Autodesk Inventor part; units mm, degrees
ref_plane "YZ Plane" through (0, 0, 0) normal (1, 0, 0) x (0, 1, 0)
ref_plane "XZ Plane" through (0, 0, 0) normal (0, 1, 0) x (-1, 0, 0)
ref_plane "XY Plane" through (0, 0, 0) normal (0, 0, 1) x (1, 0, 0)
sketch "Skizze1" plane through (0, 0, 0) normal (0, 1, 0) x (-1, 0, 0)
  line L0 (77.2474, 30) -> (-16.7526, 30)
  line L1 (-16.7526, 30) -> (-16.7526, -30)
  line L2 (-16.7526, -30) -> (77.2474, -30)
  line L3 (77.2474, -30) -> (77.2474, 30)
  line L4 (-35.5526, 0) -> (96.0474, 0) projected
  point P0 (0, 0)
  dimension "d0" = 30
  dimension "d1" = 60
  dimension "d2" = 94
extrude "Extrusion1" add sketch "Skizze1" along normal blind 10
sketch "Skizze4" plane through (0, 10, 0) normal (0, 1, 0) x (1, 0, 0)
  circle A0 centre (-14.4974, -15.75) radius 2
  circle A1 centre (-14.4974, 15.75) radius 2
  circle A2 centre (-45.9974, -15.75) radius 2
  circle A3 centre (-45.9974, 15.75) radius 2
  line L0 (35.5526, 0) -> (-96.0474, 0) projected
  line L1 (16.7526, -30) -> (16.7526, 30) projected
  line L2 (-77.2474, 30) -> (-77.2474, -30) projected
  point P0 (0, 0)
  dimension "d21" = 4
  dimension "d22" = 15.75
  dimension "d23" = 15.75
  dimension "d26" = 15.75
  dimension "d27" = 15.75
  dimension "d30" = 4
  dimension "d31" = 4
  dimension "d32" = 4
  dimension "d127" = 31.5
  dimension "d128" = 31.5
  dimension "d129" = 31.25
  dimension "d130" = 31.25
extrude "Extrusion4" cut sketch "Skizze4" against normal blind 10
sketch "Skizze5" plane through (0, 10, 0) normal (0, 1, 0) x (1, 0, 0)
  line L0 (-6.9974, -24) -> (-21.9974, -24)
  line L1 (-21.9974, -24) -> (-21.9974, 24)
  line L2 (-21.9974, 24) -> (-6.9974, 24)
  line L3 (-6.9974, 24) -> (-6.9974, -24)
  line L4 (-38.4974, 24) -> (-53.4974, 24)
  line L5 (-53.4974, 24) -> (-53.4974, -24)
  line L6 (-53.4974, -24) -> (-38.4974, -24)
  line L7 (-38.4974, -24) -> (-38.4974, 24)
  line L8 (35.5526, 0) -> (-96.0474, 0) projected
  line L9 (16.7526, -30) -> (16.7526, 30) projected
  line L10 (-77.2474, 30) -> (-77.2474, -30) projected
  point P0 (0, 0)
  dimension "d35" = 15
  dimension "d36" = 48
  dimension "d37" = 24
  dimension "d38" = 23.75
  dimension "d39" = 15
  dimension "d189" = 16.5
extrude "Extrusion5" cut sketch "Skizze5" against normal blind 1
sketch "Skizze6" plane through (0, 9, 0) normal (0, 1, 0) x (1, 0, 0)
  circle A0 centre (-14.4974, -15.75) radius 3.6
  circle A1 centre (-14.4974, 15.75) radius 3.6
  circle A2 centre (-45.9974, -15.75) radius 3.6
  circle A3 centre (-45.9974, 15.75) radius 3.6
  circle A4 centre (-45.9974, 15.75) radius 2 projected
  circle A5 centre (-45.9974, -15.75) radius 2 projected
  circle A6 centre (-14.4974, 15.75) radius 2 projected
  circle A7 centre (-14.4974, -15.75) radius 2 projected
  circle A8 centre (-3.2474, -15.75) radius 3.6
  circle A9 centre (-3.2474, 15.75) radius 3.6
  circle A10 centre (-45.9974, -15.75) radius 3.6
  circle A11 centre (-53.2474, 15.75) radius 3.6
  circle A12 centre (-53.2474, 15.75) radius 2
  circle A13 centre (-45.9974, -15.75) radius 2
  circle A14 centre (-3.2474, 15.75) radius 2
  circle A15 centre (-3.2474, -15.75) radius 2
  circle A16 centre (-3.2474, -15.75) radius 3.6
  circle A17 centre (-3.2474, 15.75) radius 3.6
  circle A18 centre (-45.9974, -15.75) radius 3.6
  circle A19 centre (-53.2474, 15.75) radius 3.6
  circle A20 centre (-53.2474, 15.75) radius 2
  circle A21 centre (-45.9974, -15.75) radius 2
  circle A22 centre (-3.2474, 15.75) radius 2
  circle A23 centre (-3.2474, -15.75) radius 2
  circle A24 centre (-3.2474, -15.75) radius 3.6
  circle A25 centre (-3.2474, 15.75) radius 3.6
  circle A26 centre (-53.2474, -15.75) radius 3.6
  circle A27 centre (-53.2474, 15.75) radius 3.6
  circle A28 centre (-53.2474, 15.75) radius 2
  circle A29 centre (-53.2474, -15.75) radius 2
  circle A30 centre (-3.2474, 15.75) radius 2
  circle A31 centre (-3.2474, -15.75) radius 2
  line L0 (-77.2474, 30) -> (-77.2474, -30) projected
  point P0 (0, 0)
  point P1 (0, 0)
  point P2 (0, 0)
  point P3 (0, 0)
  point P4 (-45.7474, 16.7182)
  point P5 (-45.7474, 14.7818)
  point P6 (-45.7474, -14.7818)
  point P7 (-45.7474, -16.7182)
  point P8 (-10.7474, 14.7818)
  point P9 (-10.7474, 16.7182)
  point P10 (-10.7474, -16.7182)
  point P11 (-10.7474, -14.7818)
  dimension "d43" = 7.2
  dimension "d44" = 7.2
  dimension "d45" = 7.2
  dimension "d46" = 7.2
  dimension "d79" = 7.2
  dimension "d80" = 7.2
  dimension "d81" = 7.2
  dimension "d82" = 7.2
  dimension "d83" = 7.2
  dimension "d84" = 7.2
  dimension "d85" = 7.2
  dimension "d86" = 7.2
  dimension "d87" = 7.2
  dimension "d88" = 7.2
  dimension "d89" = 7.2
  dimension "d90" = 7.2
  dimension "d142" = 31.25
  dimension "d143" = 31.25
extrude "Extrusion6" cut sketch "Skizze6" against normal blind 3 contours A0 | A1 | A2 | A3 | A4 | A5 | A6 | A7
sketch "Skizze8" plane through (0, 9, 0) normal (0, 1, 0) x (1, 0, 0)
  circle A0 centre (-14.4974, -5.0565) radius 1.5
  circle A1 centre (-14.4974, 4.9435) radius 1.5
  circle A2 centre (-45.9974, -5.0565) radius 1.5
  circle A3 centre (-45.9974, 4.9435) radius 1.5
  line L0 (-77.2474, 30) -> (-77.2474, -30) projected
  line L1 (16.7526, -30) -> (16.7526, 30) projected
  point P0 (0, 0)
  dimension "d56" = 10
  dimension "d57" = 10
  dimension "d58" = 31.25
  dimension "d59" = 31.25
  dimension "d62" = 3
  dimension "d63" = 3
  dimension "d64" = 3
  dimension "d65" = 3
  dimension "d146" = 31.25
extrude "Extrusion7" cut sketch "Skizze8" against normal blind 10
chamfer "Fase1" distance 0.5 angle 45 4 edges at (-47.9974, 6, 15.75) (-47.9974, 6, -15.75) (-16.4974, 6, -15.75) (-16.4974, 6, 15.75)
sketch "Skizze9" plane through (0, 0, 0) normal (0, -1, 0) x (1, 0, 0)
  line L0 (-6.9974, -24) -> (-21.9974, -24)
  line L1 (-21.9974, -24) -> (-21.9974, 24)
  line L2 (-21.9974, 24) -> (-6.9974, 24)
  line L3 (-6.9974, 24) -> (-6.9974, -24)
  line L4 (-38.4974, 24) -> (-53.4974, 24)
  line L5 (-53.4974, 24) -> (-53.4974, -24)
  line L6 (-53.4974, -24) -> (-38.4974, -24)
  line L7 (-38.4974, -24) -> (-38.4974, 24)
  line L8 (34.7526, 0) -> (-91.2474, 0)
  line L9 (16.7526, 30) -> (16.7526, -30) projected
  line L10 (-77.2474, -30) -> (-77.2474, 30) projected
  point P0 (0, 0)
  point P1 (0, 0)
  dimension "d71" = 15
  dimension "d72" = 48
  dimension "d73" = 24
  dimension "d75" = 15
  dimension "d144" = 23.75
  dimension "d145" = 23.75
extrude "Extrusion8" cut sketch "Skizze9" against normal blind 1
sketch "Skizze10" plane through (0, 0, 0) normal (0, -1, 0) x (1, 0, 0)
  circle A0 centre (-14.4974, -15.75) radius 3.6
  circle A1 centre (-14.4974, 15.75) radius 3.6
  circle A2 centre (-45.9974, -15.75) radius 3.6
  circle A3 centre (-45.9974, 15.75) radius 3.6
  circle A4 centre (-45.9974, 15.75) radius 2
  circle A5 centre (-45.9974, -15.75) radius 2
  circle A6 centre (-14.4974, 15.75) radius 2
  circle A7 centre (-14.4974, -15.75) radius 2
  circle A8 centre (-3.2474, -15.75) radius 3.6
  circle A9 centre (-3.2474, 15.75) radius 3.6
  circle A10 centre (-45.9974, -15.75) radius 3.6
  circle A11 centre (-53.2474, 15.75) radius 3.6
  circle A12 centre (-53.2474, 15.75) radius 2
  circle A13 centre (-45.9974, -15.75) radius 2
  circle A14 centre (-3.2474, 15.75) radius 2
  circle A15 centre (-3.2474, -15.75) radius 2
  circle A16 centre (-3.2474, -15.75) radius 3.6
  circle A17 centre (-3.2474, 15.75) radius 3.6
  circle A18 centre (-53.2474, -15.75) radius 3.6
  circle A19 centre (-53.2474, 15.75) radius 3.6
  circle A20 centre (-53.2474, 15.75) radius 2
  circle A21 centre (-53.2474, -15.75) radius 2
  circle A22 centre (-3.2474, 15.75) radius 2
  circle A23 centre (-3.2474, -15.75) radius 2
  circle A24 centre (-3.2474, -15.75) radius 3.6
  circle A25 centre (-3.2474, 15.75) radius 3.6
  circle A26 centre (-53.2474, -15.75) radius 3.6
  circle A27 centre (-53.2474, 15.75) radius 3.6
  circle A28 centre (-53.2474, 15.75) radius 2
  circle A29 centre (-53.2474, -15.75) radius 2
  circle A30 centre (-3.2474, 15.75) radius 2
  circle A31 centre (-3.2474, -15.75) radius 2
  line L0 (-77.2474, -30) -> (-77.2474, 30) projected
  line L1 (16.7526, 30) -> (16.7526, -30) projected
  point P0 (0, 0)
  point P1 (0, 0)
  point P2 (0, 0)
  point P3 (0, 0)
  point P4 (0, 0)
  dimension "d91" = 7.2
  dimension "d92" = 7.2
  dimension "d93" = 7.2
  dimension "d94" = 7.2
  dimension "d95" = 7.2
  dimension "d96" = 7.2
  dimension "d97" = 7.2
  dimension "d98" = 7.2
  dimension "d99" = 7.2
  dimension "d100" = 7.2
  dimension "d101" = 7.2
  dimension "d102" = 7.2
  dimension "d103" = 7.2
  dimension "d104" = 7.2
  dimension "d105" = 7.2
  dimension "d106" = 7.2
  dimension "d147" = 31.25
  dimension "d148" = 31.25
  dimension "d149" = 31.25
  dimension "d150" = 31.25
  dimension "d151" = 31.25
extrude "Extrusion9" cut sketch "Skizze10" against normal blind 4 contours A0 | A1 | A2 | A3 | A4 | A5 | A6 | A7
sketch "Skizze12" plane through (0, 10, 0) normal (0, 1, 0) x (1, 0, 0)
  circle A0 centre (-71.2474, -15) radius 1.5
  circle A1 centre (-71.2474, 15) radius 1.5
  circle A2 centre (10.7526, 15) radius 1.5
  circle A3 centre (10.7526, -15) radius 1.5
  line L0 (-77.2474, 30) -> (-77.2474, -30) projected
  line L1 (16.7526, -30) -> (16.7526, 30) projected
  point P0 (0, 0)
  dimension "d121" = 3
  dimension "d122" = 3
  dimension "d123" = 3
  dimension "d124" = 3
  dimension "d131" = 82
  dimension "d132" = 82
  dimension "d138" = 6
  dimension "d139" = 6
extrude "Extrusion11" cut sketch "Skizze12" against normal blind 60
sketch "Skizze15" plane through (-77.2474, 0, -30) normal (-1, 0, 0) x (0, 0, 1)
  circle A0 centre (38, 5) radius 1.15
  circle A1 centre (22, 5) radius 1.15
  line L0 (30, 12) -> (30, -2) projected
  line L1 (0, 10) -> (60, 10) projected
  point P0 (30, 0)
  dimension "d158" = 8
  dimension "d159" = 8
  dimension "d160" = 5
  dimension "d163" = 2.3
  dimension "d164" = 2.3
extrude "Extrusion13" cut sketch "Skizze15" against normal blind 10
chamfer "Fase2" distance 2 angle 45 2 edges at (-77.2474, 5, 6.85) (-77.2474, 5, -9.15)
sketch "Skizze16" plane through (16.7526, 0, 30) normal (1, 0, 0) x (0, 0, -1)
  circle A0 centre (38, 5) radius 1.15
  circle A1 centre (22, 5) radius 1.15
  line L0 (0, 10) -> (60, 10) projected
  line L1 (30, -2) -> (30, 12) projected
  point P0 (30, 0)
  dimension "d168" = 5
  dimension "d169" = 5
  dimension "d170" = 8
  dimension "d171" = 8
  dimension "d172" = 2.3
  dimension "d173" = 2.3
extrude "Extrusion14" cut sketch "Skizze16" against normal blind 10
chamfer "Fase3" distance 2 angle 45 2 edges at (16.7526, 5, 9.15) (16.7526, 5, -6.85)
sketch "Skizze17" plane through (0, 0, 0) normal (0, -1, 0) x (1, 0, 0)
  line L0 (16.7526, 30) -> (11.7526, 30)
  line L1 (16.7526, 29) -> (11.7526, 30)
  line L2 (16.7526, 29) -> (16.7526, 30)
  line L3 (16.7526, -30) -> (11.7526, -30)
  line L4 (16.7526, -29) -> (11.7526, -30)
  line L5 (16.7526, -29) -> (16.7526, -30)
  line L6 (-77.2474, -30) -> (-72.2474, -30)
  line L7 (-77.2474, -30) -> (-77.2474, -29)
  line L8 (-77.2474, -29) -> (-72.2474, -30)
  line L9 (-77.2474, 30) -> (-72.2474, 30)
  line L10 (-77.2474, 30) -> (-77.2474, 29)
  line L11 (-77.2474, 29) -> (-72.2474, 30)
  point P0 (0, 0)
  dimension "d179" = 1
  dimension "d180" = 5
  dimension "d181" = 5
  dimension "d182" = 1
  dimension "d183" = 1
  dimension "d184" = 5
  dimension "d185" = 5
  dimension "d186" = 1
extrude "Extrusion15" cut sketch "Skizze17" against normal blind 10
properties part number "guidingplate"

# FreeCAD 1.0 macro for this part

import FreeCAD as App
import Part
import Sketcher

V = App.Vector
Q = App.Units.Quantity


def edges_at(feature, points):
    """Names of the edges that pass closest to the given points."""
    edges = feature.Shape.Edges
    near = lambda p: min(range(len(edges)), key=lambda i: edges[i].distToShape(Part.Vertex(*p))[0])
    return sorted({f"Edge{near(p) + 1}" for p in points})


def add_polygon(sketch, points):
    """Adds a closed chain of lines whose ends are joined by coincident constraints."""
    first, n = sketch.GeometryCount, len(points)
    for a, b in zip(points, points[1:] + points[:1]):
        sketch.addGeometry(Part.LineSegment(App.Vector(*a, 0), App.Vector(*b, 0)), False)
    for i in range(n):
        sketch.addConstraint(Sketcher.Constraint("Coincident", first + i, 2, first + (i + 1) % n, 1))

doc = App.newDocument("Part")
body = doc.addObject("PartDesign::Body", "Body")

sketch1 = body.newObject("Sketcher::SketchObject", "Sketch")
sketch1.AttachmentSupport = (doc.getObject("XZ_Plane"), [""])
sketch1.MapMode = "FlatFace"
add_polygon(sketch1, [(-77, 30), (17, 30), (17, -30), (-77, -30)])
sketch1.addConstraint([
    Sketcher.Constraint("Horizontal", 0),
    Sketcher.Constraint("Vertical", 1),
    Sketcher.Constraint("Horizontal", 2),
    Sketcher.Constraint("Vertical", 3),
    Sketcher.Constraint("DistanceX", 0, 1, 0, 2, Q("94 mm")),
    Sketcher.Constraint("DistanceY", 1, 2, 1, 1, Q("60 mm")),
    Sketcher.Constraint("DistanceY", -1, 1, 0, 2, Q("30 mm")),
    Sketcher.Constraint("DistanceX", -1, 1, 0, 2, Q("16.7526 mm")),
])
pad1 = body.newObject("PartDesign::Pad", "Pad")
pad1.Profile = sketch1
pad1.Length = 10
pad1.Reversed = True

sketch2 = body.newObject("Sketcher::SketchObject", "Sketch001")
sketch2.AttachmentSupport = (doc.getObject("XZ_Plane"), [""])
sketch2.MapMode = "FlatFace"
sketch2.AttachmentOffset = App.Placement(V(0, 0, -10), App.Rotation())
sketch2.addGeometry([
    Part.Circle(V(-14.5, 15.8, 0), V(0, 0, 1), 2),
    Part.Circle(V(-14.5, -15.8, 0), V(0, 0, 1), 2),
    Part.Circle(V(-46, 15.8, 0), V(0, 0, 1), 2),
    Part.Circle(V(-46, -15.8, 0), V(0, 0, 1), 2),
], False)
sketch2.addConstraint([
    Sketcher.Constraint("Equal", 0, 1),
    Sketcher.Constraint("Equal", 1, 2),
    Sketcher.Constraint("Equal", 2, 3),
    Sketcher.Constraint("Symmetric", 0, 3, 1, 3, -1),
    Sketcher.Constraint("Symmetric", 2, 3, 3, 3, -1),
    Sketcher.Constraint("Horizontal", 0, 3, 2, 3),
    Sketcher.Constraint("Diameter", 0, Q("4 mm")),
    Sketcher.Constraint("DistanceY", 1, 3, 0, 3, Q("31.5 mm")),
    Sketcher.Constraint("DistanceX", 2, 3, 0, 3, Q("31.5 mm")),
    Sketcher.Constraint("DistanceX", 0, 3, -1, 1, Q("14.4974 mm")),
])
pocket1 = body.newObject("PartDesign::Pocket", "Pocket")
pocket1.Profile = sketch2
pocket1.Length = 10
pocket1.Reversed = True

sketch3 = body.newObject("Sketcher::SketchObject", "Sketch002")
sketch3.AttachmentSupport = (doc.getObject("XZ_Plane"), [""])
sketch3.MapMode = "FlatFace"
sketch3.AttachmentOffset = App.Placement(V(0, 0, -10), App.Rotation())
add_polygon(sketch3, [(-38, 24), (-38, -24), (-53, -24), (-53, 24)])
add_polygon(sketch3, [(-22, 24), (-7, 24), (-7, -24), (-22, -24)])
sketch3.addConstraint([
    Sketcher.Constraint("Vertical", 0),
    Sketcher.Constraint("Horizontal", 1),
    Sketcher.Constraint("Vertical", 2),
    Sketcher.Constraint("Horizontal", 3),
    Sketcher.Constraint("Horizontal", 4),
    Sketcher.Constraint("Vertical", 5),
    Sketcher.Constraint("Horizontal", 6),
    Sketcher.Constraint("Vertical", 7),
    Sketcher.Constraint("Horizontal", 3, 2, 4, 2),
    Sketcher.Constraint("Horizontal", 1, 2, 5, 2),
    Sketcher.Constraint("Equal", 3, 4),
    Sketcher.Constraint("DistanceX", 1, 2, 1, 1, Q("15 mm")),
    Sketcher.Constraint("DistanceY", 0, 2, 0, 1, Q("48 mm")),
    Sketcher.Constraint("DistanceY", 0, 2, -1, 1, Q("24 mm")),
    Sketcher.Constraint("DistanceX", 0, 2, 6, 2, Q("16.5 mm")),
    Sketcher.Constraint("DistanceX", 0, 2, -1, 1, Q("38.4974 mm")),
])
pocket2 = body.newObject("PartDesign::Pocket", "Pocket001")
pocket2.Profile = sketch3
pocket2.Length = 1
pocket2.Reversed = True

sketch4 = body.newObject("Sketcher::SketchObject", "Sketch003")
sketch4.AttachmentSupport = (doc.getObject("XZ_Plane"), [""])
sketch4.MapMode = "FlatFace"
sketch4.AttachmentOffset = App.Placement(V(0, 0, -9), App.Rotation())
sketch4.addGeometry([
    Part.Circle(V(-14.5, 15.8, 0), V(0, 0, 1), 3.6),
    Part.Circle(V(-14.5, -15.8, 0), V(0, 0, 1), 3.6),
    Part.Circle(V(-46, 15.8, 0), V(0, 0, 1), 3.6),
    Part.Circle(V(-46, -15.8, 0), V(0, 0, 1), 3.6),
], False)
sketch4.addConstraint([
    Sketcher.Constraint("Equal", 0, 1),
    Sketcher.Constraint("Equal", 1, 2),
    Sketcher.Constraint("Equal", 2, 3),
    Sketcher.Constraint("Symmetric", 0, 3, 1, 3, -1),
    Sketcher.Constraint("Symmetric", 2, 3, 3, 3, -1),
    Sketcher.Constraint("Horizontal", 0, 3, 2, 3),
    Sketcher.Constraint("Diameter", 0, Q("7.2 mm")),
    Sketcher.Constraint("DistanceY", 1, 3, 0, 3, Q("31.5 mm")),
    Sketcher.Constraint("DistanceX", 2, 3, 0, 3, Q("31.5 mm")),
    Sketcher.Constraint("DistanceX", 0, 3, -1, 1, Q("14.4974 mm")),
])
pocket3 = body.newObject("PartDesign::Pocket", "Pocket002")
pocket3.Profile = sketch4
pocket3.Length = 3
pocket3.Reversed = True

sketch5 = body.newObject("Sketcher::SketchObject", "Sketch004")
sketch5.AttachmentSupport = (doc.getObject("XZ_Plane"), [""])
sketch5.MapMode = "FlatFace"
sketch5.AttachmentOffset = App.Placement(V(0, 0, -9), App.Rotation())
sketch5.addGeometry([
    Part.Circle(V(-14.5, 5.1, 0), V(0, 0, 1), 1.5),
    Part.Circle(V(-14.5, -4.9, 0), V(0, 0, 1), 1.5),
    Part.Circle(V(-46, 5.1, 0), V(0, 0, 1), 1.5),
    Part.Circle(V(-46, -4.9, 0), V(0, 0, 1), 1.5),
], False)
sketch5.addConstraint([
    Sketcher.Constraint("Equal", 0, 1),
    Sketcher.Constraint("Equal", 1, 2),
    Sketcher.Constraint("Equal", 2, 3),
    Sketcher.Constraint("Horizontal", 0, 3, 2, 3),
    Sketcher.Constraint("Horizontal", 1, 3, 3, 3),
    Sketcher.Constraint("Vertical", 0, 3, 1, 3),
    Sketcher.Constraint("Vertical", 2, 3, 3, 3),
    Sketcher.Constraint("Diameter", 0, Q("3 mm")),
    Sketcher.Constraint("DistanceY", 1, 3, 0, 3, Q("10 mm")),
    Sketcher.Constraint("DistanceX", 2, 3, 0, 3, Q("31.5 mm")),
    Sketcher.Constraint("DistanceX", 0, 3, -1, 1, Q("14.4974 mm")),
    Sketcher.Constraint("DistanceY", -1, 1, 0, 3, Q("5.0565 mm")),
])
pocket4 = body.newObject("PartDesign::Pocket", "Pocket003")
pocket4.Profile = sketch5
pocket4.Length = 10
pocket4.Reversed = True
doc.recompute()

chamfer = body.newObject("PartDesign::Chamfer", "Chamfer")
chamfer.Base = (pocket4, edges_at(pocket4, [
    (-47.997, 6, 15.75),
    (-47.997, 6, -15.75),
    (-16.497, 6, -15.75),
    (-16.497, 6, 15.75),
]))
chamfer.Size = 0.5

sketch6 = body.newObject("Sketcher::SketchObject", "Sketch005")
sketch6.AttachmentSupport = (doc.getObject("XZ_Plane"), [""])
sketch6.MapMode = "FlatFace"
add_polygon(sketch6, [(-38, -24), (-38, 24), (-53, 24), (-53, -24)])
add_polygon(sketch6, [(-22, -24), (-7, -24), (-7, 24), (-22, 24)])
sketch6.addConstraint([
    Sketcher.Constraint("Vertical", 0),
    Sketcher.Constraint("Horizontal", 1),
    Sketcher.Constraint("Vertical", 2),
    Sketcher.Constraint("Horizontal", 3),
    Sketcher.Constraint("Horizontal", 4),
    Sketcher.Constraint("Vertical", 5),
    Sketcher.Constraint("Horizontal", 6),
    Sketcher.Constraint("Vertical", 7),
    Sketcher.Constraint("Horizontal", 3, 2, 4, 2),
    Sketcher.Constraint("Horizontal", 1, 2, 5, 2),
    Sketcher.Constraint("Equal", 3, 4),
    Sketcher.Constraint("DistanceX", 1, 2, 1, 1, Q("15 mm")),
    Sketcher.Constraint("DistanceY", 0, 1, 0, 2, Q("48 mm")),
    Sketcher.Constraint("DistanceY", -1, 1, 0, 2, Q("24 mm")),
    Sketcher.Constraint("DistanceX", 3, 2, 4, 2, Q("31.5 mm")),
    Sketcher.Constraint("DistanceX", 0, 2, -1, 1, Q("38.4974 mm")),
])
pocket5 = body.newObject("PartDesign::Pocket", "Pocket004")
pocket5.Profile = sketch6
pocket5.Length = 1

sketch7 = body.newObject("Sketcher::SketchObject", "Sketch006")
sketch7.AttachmentSupport = (doc.getObject("XZ_Plane"), [""])
sketch7.MapMode = "FlatFace"
sketch7.addGeometry([
    Part.Circle(V(-14.5, -15.8, 0), V(0, 0, 1), 3.6),
    Part.Circle(V(-14.5, 15.8, 0), V(0, 0, 1), 3.6),
    Part.Circle(V(-46, -15.8, 0), V(0, 0, 1), 3.6),
    Part.Circle(V(-46, 15.8, 0), V(0, 0, 1), 3.6),
], False)
sketch7.addConstraint([
    Sketcher.Constraint("Equal", 0, 1),
    Sketcher.Constraint("Equal", 1, 2),
    Sketcher.Constraint("Equal", 2, 3),
    Sketcher.Constraint("Symmetric", 0, 3, 1, 3, -1),
    Sketcher.Constraint("Symmetric", 2, 3, 3, 3, -1),
    Sketcher.Constraint("Horizontal", 0, 3, 2, 3),
    Sketcher.Constraint("Diameter", 0, Q("7.2 mm")),
    Sketcher.Constraint("DistanceY", 0, 3, 1, 3, Q("31.5 mm")),
    Sketcher.Constraint("DistanceX", 2, 3, 0, 3, Q("31.5 mm")),
    Sketcher.Constraint("DistanceX", 0, 3, -1, 1, Q("14.4974 mm")),
])
pocket6 = body.newObject("PartDesign::Pocket", "Pocket005")
pocket6.Profile = sketch7
pocket6.Length = 4

sketch8 = body.newObject("Sketcher::SketchObject", "Sketch007")
sketch8.AttachmentSupport = (doc.getObject("XZ_Plane"), [""])
sketch8.MapMode = "FlatFace"
sketch8.AttachmentOffset = App.Placement(V(0, 0, -10), App.Rotation())
sketch8.addGeometry([
    Part.Circle(V(-71.2, 15, 0), V(0, 0, 1), 1.5),
    Part.Circle(V(-71.2, -15, 0), V(0, 0, 1), 1.5),
    Part.Circle(V(10.8, -15, 0), V(0, 0, 1), 1.5),
    Part.Circle(V(10.8, 15, 0), V(0, 0, 1), 1.5),
], False)
sketch8.addConstraint([
    Sketcher.Constraint("Equal", 0, 1),
    Sketcher.Constraint("Equal", 1, 2),
    Sketcher.Constraint("Equal", 2, 3),
    Sketcher.Constraint("Symmetric", 0, 3, 1, 3, -1),
    Sketcher.Constraint("Symmetric", 2, 3, 3, 3, -1),
    Sketcher.Constraint("Horizontal", 1, 3, 2, 3),
    Sketcher.Constraint("Diameter", 0, Q("3 mm")),
    Sketcher.Constraint("DistanceX", 1, 3, 2, 3, Q("82 mm")),
    Sketcher.Constraint("DistanceY", -1, 1, 0, 3, Q("15 mm")),
    Sketcher.Constraint("DistanceX", 0, 3, -1, 1, Q("71.2474 mm")),
])
pocket7 = body.newObject("PartDesign::Pocket", "Pocket006")
pocket7.Profile = sketch8
pocket7.Length = 60
pocket7.Reversed = True

sketch9 = body.newObject("Sketcher::SketchObject", "Sketch008")
sketch9.AttachmentSupport = (doc.getObject("YZ_Plane"), [""])
sketch9.MapMode = "FlatFace"
sketch9.AttachmentOffset = App.Placement(V(0, 0, -77.2474), App.Rotation())
sketch9.addGeometry([
    Part.Circle(V(5, 8, 0), V(0, 0, 1), 1.1),
    Part.Circle(V(5, -8, 0), V(0, 0, 1), 1.1),
], False)
sketch9.addConstraint([
    Sketcher.Constraint("Equal", 0, 1),
    Sketcher.Constraint("Symmetric", 0, 3, 1, 3, -1),
    Sketcher.Constraint("Diameter", 0, Q("2.3 mm")),
    Sketcher.Constraint("DistanceX", -1, 1, 0, 3, Q("5 mm")),
    Sketcher.Constraint("DistanceY", -1, 1, 0, 3, Q("8 mm")),
])
pocket8 = body.newObject("PartDesign::Pocket", "Pocket007")
pocket8.Profile = sketch9
pocket8.Length = 10
pocket8.Reversed = True
doc.recompute()

chamfer2 = body.newObject("PartDesign::Chamfer", "Chamfer001")
chamfer2.Base = (pocket8, edges_at(pocket8, [(-77.247, 5, 6.85), (-77.247, 5, -9.15)]))
chamfer2.Size = 2

sketch10 = body.newObject("Sketcher::SketchObject", "Sketch009")
sketch10.AttachmentSupport = (doc.getObject("YZ_Plane"), [""])
sketch10.MapMode = "FlatFace"
sketch10.AttachmentOffset = App.Placement(V(0, 0, 16.7526), App.Rotation())
sketch10.addGeometry([
    Part.Circle(V(5, -8, 0), V(0, 0, 1), 1.1),
    Part.Circle(V(5, 8, 0), V(0, 0, 1), 1.1),
], False)
sketch10.addConstraint([
    Sketcher.Constraint("Equal", 0, 1),
    Sketcher.Constraint("Symmetric", 0, 3, 1, 3, -1),
    Sketcher.Constraint("Diameter", 0, Q("2.3 mm")),
    Sketcher.Constraint("DistanceX", -1, 1, 0, 3, Q("5 mm")),
    Sketcher.Constraint("DistanceY", 0, 3, -1, 1, Q("8 mm")),
])
pocket9 = body.newObject("PartDesign::Pocket", "Pocket008")
pocket9.Profile = sketch10
pocket9.Length = 10
doc.recompute()

chamfer3 = body.newObject("PartDesign::Chamfer", "Chamfer002")
chamfer3.Base = (pocket9, edges_at(pocket9, [(16.753, 5, 9.15), (16.753, 5, -6.85)]))
chamfer3.Size = 2

sketch11 = body.newObject("Sketcher::SketchObject", "Sketch010")
sketch11.AttachmentSupport = (doc.getObject("XZ_Plane"), [""])
sketch11.MapMode = "FlatFace"
add_polygon(sketch11, [(16.8, 29), (16.8, 30), (11.8, 30)])
add_polygon(sketch11, [(11.8, -30), (16.8, -30), (16.8, -29)])
add_polygon(sketch11, [(-77.2, -29), (-77.2, -30), (-72.2, -30)])
add_polygon(sketch11, [(-72.2, 30), (-77.2, 30), (-77.2, 29)])
sketch11.addConstraint([
    Sketcher.Constraint("Vertical", 0),
    Sketcher.Constraint("Horizontal", 1),
    Sketcher.Constraint("Horizontal", 3),
    Sketcher.Constraint("Vertical", 4),
    Sketcher.Constraint("Vertical", 6),
    Sketcher.Constraint("Horizontal", 7),
    Sketcher.Constraint("Horizontal", 9),
    Sketcher.Constraint("Vertical", 10),
    Sketcher.Constraint("Symmetric", 0, 2, 3, 2, -1),
    Sketcher.Constraint("Symmetric", 6, 2, 9, 2, -1),
    Sketcher.Constraint("Parallel", 2, 8),
    Sketcher.Constraint("Parallel", 5, 11),
    Sketcher.Constraint("Horizontal", 5, 2, 6, 2),
    Sketcher.Constraint("Horizontal", 4, 2, 8, 2),
    Sketcher.Constraint("Horizontal", 2, 2, 10, 2),
    Sketcher.Constraint("Vertical", 1, 2, 5, 2),
    Sketcher.Constraint("Vertical", 7, 2, 11, 2),
    Sketcher.Constraint("DistanceX", 1, 2, 1, 1, Q("5 mm")),
    Sketcher.Constraint("DistanceY", 0, 1, 0, 2, Q("1 mm")),
    Sketcher.Constraint("DistanceY", -1, 1, 0, 2, Q("30 mm")),
    Sketcher.Constraint("DistanceX", 6, 2, 5, 2, Q("89 mm")),
    Sketcher.Constraint("DistanceX", -1, 1, 0, 2, Q("16.7526 mm")),
])
pocket10 = body.newObject("PartDesign::Pocket", "Pocket009")
pocket10.Profile = sketch11
pocket10.Length = 10

doc.recompute()
